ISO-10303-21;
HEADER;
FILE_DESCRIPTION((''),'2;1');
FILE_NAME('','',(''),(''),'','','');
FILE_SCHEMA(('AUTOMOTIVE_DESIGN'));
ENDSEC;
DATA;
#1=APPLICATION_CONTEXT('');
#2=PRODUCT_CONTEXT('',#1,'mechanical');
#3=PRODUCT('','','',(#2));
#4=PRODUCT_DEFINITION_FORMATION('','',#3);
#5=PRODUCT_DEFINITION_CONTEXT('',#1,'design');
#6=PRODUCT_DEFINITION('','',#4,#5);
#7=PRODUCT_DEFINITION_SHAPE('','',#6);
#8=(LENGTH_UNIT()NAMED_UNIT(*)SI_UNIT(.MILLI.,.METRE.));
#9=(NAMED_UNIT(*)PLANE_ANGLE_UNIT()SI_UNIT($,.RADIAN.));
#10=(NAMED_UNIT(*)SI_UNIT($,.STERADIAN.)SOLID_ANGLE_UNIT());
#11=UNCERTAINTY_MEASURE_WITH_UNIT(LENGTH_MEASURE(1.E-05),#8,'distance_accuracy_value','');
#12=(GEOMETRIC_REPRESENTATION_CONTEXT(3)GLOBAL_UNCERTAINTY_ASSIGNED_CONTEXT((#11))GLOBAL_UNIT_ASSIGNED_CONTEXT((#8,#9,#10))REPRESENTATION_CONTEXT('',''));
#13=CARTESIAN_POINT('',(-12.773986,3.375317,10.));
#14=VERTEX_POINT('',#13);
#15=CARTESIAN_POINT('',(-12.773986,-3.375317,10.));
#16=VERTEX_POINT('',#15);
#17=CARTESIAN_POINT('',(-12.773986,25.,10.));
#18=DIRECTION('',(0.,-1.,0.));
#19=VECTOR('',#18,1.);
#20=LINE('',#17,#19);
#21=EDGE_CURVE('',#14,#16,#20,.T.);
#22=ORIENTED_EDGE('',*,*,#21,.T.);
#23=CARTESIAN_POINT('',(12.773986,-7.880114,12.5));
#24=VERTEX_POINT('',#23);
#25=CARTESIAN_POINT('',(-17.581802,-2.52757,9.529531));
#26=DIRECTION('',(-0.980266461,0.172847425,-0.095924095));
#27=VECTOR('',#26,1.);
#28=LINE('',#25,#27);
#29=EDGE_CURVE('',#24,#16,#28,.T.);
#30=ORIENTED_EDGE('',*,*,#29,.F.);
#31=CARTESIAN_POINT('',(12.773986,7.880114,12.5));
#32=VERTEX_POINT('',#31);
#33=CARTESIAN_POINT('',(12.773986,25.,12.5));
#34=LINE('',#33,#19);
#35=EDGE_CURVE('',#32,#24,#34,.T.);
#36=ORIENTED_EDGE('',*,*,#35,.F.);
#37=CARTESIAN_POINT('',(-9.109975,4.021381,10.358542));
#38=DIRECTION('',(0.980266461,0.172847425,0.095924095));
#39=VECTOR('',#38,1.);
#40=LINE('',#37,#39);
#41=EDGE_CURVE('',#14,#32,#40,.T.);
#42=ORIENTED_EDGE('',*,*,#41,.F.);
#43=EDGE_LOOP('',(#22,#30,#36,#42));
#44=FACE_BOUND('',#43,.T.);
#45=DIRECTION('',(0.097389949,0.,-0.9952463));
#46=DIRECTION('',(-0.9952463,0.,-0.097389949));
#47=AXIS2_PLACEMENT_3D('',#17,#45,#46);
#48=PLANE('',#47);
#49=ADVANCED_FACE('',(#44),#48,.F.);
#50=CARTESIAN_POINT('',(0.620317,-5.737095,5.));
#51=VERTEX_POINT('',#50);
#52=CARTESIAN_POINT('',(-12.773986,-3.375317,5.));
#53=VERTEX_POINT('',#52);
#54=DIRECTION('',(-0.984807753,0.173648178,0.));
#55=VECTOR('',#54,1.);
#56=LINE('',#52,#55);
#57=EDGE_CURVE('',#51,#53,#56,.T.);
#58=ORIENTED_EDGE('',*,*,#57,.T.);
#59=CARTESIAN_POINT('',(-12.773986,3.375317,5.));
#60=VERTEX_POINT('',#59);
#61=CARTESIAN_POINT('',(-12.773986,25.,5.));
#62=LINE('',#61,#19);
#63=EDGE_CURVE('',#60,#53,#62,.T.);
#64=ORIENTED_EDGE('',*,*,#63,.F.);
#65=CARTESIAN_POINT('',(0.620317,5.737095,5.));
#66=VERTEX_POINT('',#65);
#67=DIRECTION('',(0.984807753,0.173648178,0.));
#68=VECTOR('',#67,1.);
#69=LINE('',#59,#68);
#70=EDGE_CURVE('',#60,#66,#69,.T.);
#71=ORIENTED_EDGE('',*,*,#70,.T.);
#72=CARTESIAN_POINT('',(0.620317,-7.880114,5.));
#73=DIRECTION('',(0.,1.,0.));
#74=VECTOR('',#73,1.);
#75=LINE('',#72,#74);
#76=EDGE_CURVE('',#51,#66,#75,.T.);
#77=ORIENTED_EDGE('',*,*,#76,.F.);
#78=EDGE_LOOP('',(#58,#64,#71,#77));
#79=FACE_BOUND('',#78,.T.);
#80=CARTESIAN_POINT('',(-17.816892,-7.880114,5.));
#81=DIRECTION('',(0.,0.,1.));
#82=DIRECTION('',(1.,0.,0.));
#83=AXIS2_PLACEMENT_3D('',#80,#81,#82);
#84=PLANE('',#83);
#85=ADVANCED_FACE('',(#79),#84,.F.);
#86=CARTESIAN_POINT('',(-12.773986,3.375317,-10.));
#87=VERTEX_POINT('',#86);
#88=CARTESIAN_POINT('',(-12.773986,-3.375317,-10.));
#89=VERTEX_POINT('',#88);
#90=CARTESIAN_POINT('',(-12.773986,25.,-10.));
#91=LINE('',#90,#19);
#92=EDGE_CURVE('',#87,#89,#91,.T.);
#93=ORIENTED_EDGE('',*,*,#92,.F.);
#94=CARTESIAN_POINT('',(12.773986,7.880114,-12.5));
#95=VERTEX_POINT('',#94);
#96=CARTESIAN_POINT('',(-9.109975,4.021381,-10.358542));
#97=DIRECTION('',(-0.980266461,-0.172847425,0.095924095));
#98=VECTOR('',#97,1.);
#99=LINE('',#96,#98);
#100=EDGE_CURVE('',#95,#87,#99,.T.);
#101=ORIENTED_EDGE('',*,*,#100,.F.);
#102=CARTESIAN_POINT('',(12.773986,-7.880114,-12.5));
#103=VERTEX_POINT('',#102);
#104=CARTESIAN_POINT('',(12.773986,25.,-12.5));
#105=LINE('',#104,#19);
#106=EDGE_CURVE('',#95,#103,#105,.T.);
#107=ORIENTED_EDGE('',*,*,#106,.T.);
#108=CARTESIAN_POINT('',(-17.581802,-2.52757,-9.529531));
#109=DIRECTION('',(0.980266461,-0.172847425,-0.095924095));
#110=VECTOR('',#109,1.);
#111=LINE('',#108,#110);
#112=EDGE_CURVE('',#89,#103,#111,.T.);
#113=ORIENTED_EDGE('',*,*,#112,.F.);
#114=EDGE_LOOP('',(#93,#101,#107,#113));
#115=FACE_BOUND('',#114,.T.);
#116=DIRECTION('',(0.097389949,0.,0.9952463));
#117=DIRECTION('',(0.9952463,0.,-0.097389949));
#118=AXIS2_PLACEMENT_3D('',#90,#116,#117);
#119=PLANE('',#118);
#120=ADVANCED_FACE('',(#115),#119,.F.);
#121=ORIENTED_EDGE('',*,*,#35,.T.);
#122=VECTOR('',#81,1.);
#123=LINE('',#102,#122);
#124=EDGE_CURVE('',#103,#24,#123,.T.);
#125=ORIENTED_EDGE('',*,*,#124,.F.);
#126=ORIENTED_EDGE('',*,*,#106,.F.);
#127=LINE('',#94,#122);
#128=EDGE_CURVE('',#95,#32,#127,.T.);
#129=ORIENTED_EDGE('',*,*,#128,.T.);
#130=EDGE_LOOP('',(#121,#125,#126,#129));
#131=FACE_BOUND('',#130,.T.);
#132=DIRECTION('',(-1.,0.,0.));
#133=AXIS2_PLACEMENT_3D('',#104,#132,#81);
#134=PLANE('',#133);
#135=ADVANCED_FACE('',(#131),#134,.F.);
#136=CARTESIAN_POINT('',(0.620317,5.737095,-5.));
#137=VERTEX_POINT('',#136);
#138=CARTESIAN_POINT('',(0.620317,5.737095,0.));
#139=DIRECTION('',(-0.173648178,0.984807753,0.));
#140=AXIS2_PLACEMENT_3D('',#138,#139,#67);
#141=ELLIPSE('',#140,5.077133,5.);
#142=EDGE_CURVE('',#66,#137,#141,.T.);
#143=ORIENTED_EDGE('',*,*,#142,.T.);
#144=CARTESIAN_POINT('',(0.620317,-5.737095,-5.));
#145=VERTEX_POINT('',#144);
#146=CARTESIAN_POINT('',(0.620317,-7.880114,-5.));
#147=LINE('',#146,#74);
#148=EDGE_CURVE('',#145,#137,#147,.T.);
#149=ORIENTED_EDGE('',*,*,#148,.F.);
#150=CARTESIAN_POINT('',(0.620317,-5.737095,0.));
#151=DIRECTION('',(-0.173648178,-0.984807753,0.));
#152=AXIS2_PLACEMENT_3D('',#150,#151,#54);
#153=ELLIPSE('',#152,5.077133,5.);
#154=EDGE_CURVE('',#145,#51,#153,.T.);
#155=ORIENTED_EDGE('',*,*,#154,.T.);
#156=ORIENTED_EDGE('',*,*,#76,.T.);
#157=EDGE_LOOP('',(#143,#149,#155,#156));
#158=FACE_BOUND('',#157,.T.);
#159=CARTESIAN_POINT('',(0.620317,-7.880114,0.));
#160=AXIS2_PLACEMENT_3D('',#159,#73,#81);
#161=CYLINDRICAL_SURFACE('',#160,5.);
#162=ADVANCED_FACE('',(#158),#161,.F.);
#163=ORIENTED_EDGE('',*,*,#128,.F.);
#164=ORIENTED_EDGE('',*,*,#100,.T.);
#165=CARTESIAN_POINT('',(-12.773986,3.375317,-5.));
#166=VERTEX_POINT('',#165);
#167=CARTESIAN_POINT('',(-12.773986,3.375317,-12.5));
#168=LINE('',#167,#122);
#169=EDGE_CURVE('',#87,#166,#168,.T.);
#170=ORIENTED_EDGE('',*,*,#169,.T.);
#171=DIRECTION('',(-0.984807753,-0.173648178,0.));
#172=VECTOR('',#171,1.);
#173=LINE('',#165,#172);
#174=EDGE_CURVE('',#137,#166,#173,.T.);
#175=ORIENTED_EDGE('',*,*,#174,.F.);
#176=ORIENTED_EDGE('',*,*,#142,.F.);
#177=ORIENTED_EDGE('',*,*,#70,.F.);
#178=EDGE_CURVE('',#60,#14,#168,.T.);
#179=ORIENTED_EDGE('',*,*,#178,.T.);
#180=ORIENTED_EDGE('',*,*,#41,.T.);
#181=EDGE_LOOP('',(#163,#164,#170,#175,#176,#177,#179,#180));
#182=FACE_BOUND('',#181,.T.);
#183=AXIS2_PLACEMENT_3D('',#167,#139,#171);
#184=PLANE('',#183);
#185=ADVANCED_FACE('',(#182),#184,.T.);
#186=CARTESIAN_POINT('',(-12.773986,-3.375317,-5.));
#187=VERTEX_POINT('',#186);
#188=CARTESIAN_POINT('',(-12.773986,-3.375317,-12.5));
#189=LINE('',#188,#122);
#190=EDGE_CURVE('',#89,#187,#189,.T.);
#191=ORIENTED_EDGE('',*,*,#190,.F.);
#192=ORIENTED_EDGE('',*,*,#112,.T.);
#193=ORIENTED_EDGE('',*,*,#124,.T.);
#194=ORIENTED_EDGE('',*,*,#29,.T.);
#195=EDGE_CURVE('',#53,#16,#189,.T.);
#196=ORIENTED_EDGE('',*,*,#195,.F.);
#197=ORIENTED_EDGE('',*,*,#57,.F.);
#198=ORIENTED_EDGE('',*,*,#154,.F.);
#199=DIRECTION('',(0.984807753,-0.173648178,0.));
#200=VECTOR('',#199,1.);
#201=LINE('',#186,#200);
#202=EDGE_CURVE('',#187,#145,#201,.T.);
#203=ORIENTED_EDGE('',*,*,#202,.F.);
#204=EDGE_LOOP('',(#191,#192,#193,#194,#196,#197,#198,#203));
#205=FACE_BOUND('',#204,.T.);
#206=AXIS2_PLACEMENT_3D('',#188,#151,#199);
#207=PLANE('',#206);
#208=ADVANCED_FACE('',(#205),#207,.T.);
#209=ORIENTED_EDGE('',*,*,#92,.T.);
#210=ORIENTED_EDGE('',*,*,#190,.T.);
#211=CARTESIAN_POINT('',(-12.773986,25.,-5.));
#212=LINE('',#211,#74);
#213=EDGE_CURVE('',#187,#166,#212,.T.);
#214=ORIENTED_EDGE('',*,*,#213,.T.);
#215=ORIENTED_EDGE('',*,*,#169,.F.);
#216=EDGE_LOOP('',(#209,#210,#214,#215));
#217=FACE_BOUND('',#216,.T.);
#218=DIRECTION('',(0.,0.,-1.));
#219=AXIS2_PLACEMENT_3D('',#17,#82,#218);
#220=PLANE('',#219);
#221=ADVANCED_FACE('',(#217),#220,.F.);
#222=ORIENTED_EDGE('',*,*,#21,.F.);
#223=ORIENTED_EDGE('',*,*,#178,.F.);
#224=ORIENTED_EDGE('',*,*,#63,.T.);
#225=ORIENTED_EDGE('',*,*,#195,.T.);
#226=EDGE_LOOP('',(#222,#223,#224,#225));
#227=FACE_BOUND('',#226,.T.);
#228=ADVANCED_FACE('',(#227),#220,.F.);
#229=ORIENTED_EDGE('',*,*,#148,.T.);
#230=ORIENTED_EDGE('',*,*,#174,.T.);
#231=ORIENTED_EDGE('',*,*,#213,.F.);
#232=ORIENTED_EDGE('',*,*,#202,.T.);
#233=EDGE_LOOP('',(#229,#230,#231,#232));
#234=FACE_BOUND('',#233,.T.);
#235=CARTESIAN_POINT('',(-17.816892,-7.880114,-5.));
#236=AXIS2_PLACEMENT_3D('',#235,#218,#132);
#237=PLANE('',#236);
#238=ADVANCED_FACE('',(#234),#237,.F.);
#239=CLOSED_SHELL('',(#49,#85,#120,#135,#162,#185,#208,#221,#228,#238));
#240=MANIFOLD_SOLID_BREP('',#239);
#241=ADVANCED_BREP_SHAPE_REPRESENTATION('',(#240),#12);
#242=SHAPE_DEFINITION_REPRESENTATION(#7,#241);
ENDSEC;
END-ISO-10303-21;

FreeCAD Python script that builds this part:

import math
import FreeCAD as App
import Part
import Sketcher

V = App.Vector
Q = App.Units.Quantity

doc = App.newDocument("Part")
body = doc.addObject("PartDesign::Body", "Body")

sketch1 = body.newObject("Sketcher::SketchObject", "Sketch")
sketch1.AttachmentSupport = (doc.getObject("XZ_Plane"), [""])
sketch1.MapMode = "FlatFace"
sketch1.addGeometry([
    Part.LineSegment(V(-12.773986, -10, 0), V(-12.773986, 10, 0)),
    Part.LineSegment(V(-12.773986, 10, 0), V(12.773986, 12.5, 0)),
    Part.LineSegment(V(12.773986, 12.5, 0), V(12.773986, -12.5, 0)),
    Part.LineSegment(V(12.773986, -12.5, 0), V(-12.773986, -10, 0)),
], False)
sketch1.addConstraint([
    Sketcher.Constraint("Coincident", 0, 2, 1, 1),
    Sketcher.Constraint("Coincident", 1, 2, 2, 1),
    Sketcher.Constraint("Coincident", 2, 2, 3, 1),
    Sketcher.Constraint("Coincident", 3, 2, 0, 1),
    Sketcher.Constraint("Vertical", 0),
    Sketcher.Constraint("Vertical", 2),
    Sketcher.Constraint("Equal", 1, 3),
    Sketcher.Constraint("DistanceY", 0, 1, 0, 2, Q("20 mm")),
    Sketcher.Constraint("DistanceY", 2, 2, 2, 1, Q("25 mm")),
    Sketcher.Constraint("DistanceY", -1, 1, 0, 2, Q("10 mm")),
    Sketcher.Constraint("Distance", 1, Q("25.67 mm")),
    Sketcher.Constraint("DistanceX", 0, 2, -1, 1, Q("12.773986 mm")),
])
pad1 = body.newObject("PartDesign::Pad", "Pad")
pad1.Profile = sketch1
pad1.Length = 50
pad1.Midplane = True

sketch2 = body.newObject("Sketcher::SketchObject", "Sketch001")
sketch2.AttachmentSupport = (doc.getObject("XY_Plane"), [""])
sketch2.MapMode = "FlatFace"
sketch2.addGeometry([
    Part.LineSegment(V(-19.92, 32.146, 0), V(-19.92, -32.146, 0)),
    Part.LineSegment(V(-19.92, -32.146, 0), V(19.92, -32.146, 0)),
    Part.LineSegment(V(19.92, -32.146, 0), V(19.92, 32.146, 0)),
    Part.LineSegment(V(19.92, 32.146, 0), V(-19.92, 32.146, 0)),
    Part.LineSegment(V(12.773986, -7.880114, 0), V(-12.773986, -3.375317, 0)),
    Part.LineSegment(V(-12.773986, -3.375317, 0), V(-12.773986, 3.375317, 0)),
    Part.LineSegment(V(-12.773986, 3.375317, 0), V(12.773986, 7.880114, 0)),
    Part.LineSegment(V(12.773986, 7.880114, 0), V(12.773986, -7.880114, 0)),
], False)
sketch2.addConstraint([
    Sketcher.Constraint("Coincident", 0, 2, 1, 1),
    Sketcher.Constraint("Coincident", 1, 2, 2, 1),
    Sketcher.Constraint("Coincident", 2, 2, 3, 1),
    Sketcher.Constraint("Coincident", 3, 2, 0, 1),
    Sketcher.Constraint("Coincident", 4, 2, 5, 1),
    Sketcher.Constraint("Coincident", 5, 2, 6, 1),
    Sketcher.Constraint("Coincident", 6, 2, 7, 1),
    Sketcher.Constraint("Coincident", 7, 2, 4, 1),
    Sketcher.Constraint("Vertical", 0),
    Sketcher.Constraint("Horizontal", 1),
    Sketcher.Constraint("Vertical", 2),
    Sketcher.Constraint("Horizontal", 3),
    Sketcher.Constraint("Vertical", 5),
    Sketcher.Constraint("Vertical", 7),
    Sketcher.Constraint("Symmetric", 0, 2, 2, 2, -1, 1),
    Sketcher.Constraint("Equal", 4, 6),
    Sketcher.Constraint("Angle", 4, Q("170 deg")),
    Sketcher.Constraint("DistanceX", 1, 1, 1, 2, Q("39.84 mm")),
    Sketcher.Constraint("DistanceY", 0, 2, 0, 1, Q("64.292 mm")),
    Sketcher.Constraint("DistanceY", 7, 2, 7, 1, Q("15.760229 mm")),
    Sketcher.Constraint("Distance", 4, Q("25.942091 mm")),
    Sketcher.Constraint("DistanceX", 4, 2, -1, 1, Q("12.773986 mm")),
    Sketcher.Constraint("DistanceY", 4, 2, -1, 1, Q("3.375317 mm")),
])
pocket1 = body.newObject("PartDesign::Pocket", "Pocket")
pocket1.Profile = sketch2
pocket1.Type = "ThroughAll"
pocket1.Midplane = True

sketch3 = body.newObject("Sketcher::SketchObject", "Sketch002")
sketch3.AttachmentSupport = (doc.getObject("XZ_Plane"), [""])
sketch3.MapMode = "FlatFace"
sketch3.addGeometry([
    Part.LineSegment(V(0.620317, -5, 0), V(-17.816892, -5, 0)),
    Part.LineSegment(V(-17.816892, -5, 0), V(-17.816892, 5, 0)),
    Part.LineSegment(V(-17.816892, 5, 0), V(0.620317, 5, 0)),
    Part.ArcOfCircle(Part.Circle(V(0.620317, 0, 0), V(0, 0, 1), 5), math.radians(-90), math.radians(90)),
], False)
sketch3.addConstraint([
    Sketcher.Constraint("Coincident", 0, 2, 1, 1),
    Sketcher.Constraint("Coincident", 1, 2, 2, 1),
    Sketcher.Constraint("Tangent", 2, 2, 3, 2),
    Sketcher.Constraint("Tangent", 3, 1, 0, 1),
    Sketcher.Constraint("Horizontal", 0),
    Sketcher.Constraint("Vertical", 1),
    Sketcher.Constraint("Horizontal", 2),
    Sketcher.Constraint("PointOnObject", 3, 3, -1),
    Sketcher.Constraint("Radius", 3, Q("5 mm")),
    Sketcher.Constraint("DistanceX", 0, 2, 0, 1, Q("18.43721 mm")),
    Sketcher.Constraint("DistanceX", -1, 1, 3, 3, Q("0.620317 mm")),
])
pocket2 = body.newObject("PartDesign::Pocket", "Pocket001")
pocket2.Profile = sketch3
pocket2.Type = "ThroughAll"
pocket2.Midplane = True

doc.recompute()
